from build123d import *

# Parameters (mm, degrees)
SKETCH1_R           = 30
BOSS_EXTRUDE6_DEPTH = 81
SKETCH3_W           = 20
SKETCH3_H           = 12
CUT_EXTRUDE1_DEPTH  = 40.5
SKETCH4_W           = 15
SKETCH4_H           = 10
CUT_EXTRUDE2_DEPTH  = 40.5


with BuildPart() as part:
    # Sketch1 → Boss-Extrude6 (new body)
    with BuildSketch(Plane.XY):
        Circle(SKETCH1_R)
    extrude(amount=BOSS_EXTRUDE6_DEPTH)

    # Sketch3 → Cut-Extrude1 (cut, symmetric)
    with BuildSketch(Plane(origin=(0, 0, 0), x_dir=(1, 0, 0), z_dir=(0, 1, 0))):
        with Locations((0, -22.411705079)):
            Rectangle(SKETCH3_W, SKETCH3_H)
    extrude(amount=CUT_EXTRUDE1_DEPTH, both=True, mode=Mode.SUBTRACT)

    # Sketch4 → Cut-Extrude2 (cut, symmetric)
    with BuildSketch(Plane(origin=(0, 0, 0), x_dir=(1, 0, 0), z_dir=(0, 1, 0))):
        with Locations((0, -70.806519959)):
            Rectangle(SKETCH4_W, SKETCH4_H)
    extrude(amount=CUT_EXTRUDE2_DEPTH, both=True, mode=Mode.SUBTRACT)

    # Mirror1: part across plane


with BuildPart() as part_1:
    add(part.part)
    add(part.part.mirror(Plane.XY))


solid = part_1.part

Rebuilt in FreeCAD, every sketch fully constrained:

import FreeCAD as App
import Part
import Sketcher

V = App.Vector


def add_polygon(sketch, points):
    """Adds a closed chain of lines whose ends are joined by coincident constraints."""
    first, n = sketch.GeometryCount, len(points)
    for a, b in zip(points, points[1:] + points[:1]):
        sketch.addGeometry(Part.LineSegment(App.Vector(*a, 0), App.Vector(*b, 0)), False)
    for i in range(n):
        sketch.addConstraint(Sketcher.Constraint("Coincident", first + i, 2, first + (i + 1) % n, 1))

doc = App.newDocument("Part")
body = doc.addObject("PartDesign::Body", "Body")

# Sketch on XY plane
sketch1 = body.newObject("Sketcher::SketchObject", "Sketch")
sketch1.AttachmentSupport = (doc.getObject("XY_Plane"), [""])
sketch1.MapMode = "FlatFace"
sketch1.addGeometry(Part.Circle(V(0, 0, 0), V(0, 0, 1), 30), False)
sketch1.addConstraint([
    Sketcher.Constraint("Coincident", 0, 3, -1, 1),
    Sketcher.Constraint("Diameter", 0, 60.0),
])
pad1 = body.newObject("PartDesign::Pad", "Pad")
pad1.Profile = sketch1
pad1.Length = 81

# Sketch on XZ plane
sketch2 = body.newObject("Sketcher::SketchObject", "Sketch001")
sketch2.AttachmentSupport = (doc.getObject("XZ_Plane"), [""])
sketch2.MapMode = "FlatFace"
add_polygon(sketch2, [(-10, 16), (-10, 28), (10, 28), (10, 16)])  # lines 0-3
sketch2.addConstraint([
    Sketcher.Constraint("Vertical", 0),
    Sketcher.Constraint("Horizontal", 1),
    Sketcher.Constraint("Vertical", 2),
    Sketcher.Constraint("Horizontal", 3),
    Sketcher.Constraint("DistanceX", 1, 1, 1, 2, 20.0),
    Sketcher.Constraint("DistanceY", 0, 1, 0, 2, 12.0),
    Sketcher.Constraint("DistanceX", 0, 2, -1, 1, 10.0),
    Sketcher.Constraint("DistanceY", -1, 1, 0, 2, 28.411705),
])
pocket1 = body.newObject("PartDesign::Pocket", "Pocket")
pocket1.Profile = sketch2
pocket1.Length = 81
pocket1.Midplane = True

# Sketch on XZ plane
sketch3 = body.newObject("Sketcher::SketchObject", "Sketch002")
sketch3.AttachmentSupport = (doc.getObject("XZ_Plane"), [""])
sketch3.MapMode = "FlatFace"
add_polygon(sketch3, [(-8, 66), (-8, 76), (8, 76), (8, 66)])  # lines 0-3
sketch3.addConstraint([
    Sketcher.Constraint("Vertical", 0),
    Sketcher.Constraint("Horizontal", 1),
    Sketcher.Constraint("Vertical", 2),
    Sketcher.Constraint("Horizontal", 3),
    Sketcher.Constraint("DistanceX", 1, 1, 1, 2, 15.0),
    Sketcher.Constraint("DistanceY", 0, 1, 0, 2, 10.0),
    Sketcher.Constraint("DistanceX", 0, 2, -1, 1, 7.5),
    Sketcher.Constraint("DistanceY", -1, 1, 0, 2, 75.80652),
])
pocket2 = body.newObject("PartDesign::Pocket", "Pocket001")
pocket2.Profile = sketch3
pocket2.Length = 81
pocket2.Midplane = True
body2 = doc.addObject("PartDesign::Body", "Body001")
doc.recompute()

body2.BaseFeature = body
doc.recompute()

mirroring = doc.addObject("Part::Mirroring", "Mirroring")
mirroring.Source = body
mirroring.Base = V(0, 0, 0)
mirroring.Normal = V(0, 0, 1)
body3 = doc.addObject("PartDesign::Body", "Body002")
body3.BaseFeature = mirroring
boolean = body2.newObject("PartDesign::Boolean", "Boolean")
boolean.Type = "Fuse"
boolean.addObjects([body3])
doc.recompute()
mirroring.Visibility = False

doc.recompute()
